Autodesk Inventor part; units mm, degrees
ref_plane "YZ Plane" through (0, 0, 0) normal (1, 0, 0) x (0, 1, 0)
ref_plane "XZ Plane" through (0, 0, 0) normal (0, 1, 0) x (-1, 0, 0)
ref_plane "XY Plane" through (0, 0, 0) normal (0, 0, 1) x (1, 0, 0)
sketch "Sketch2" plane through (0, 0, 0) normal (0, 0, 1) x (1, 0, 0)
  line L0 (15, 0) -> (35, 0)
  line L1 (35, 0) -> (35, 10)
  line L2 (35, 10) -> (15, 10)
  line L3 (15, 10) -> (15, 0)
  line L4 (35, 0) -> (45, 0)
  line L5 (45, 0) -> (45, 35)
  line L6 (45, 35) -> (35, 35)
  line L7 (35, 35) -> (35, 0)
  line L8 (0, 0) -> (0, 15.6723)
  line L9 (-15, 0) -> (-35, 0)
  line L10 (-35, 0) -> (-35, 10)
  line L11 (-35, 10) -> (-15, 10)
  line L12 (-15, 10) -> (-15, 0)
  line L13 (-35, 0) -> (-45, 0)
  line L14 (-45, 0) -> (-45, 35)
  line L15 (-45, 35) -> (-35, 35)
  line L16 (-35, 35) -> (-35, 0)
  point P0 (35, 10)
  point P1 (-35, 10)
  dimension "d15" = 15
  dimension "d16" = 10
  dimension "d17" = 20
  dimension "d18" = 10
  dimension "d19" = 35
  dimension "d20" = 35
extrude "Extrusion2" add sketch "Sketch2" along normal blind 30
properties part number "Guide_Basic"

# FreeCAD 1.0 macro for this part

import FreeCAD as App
import Part
import Sketcher

V = App.Vector


def add_polygon(sketch, points):
    """Adds a closed chain of lines whose ends are joined by coincident constraints."""
    first, n = sketch.GeometryCount, len(points)
    for a, b in zip(points, points[1:] + points[:1]):
        sketch.addGeometry(Part.LineSegment(App.Vector(*a, 0), App.Vector(*b, 0)), False)
    for i in range(n):
        sketch.addConstraint(Sketcher.Constraint("Coincident", first + i, 2, first + (i + 1) % n, 1))

doc = App.newDocument("Part")
body = doc.addObject("PartDesign::Body", "Body")
body.AllowCompound = True

# Sketch on XY plane
sketch1 = doc.addObject("Sketcher::SketchObject", "Sketch")
body.addObject(sketch1)
sketch1.AttachmentSupport = (doc.XY_Plane, [""])
sketch1.MapMode = "FlatFace"
add_polygon(sketch1, [(15, 10), (15, 0), (45, 0), (45, 35), (35, 35), (35, 10)])  # lines 0-5
add_polygon(sketch1, [(-15, 0), (-15, 10), (-35, 10), (-35, 35), (-45, 35), (-45, 0)])  # lines 6-11
sketch1.addConstraint([
    Sketcher.Constraint("Vertical", 0),
    Sketcher.Constraint("Horizontal", 1),
    Sketcher.Constraint("Vertical", 2),
    Sketcher.Constraint("Horizontal", 3),
    Sketcher.Constraint("Vertical", 4),
    Sketcher.Constraint("Horizontal", 5),
    Sketcher.Constraint("Vertical", 6),
    Sketcher.Constraint("Horizontal", 7),
    Sketcher.Constraint("Vertical", 8),
    Sketcher.Constraint("Horizontal", 9),
    Sketcher.Constraint("Vertical", 10),
    Sketcher.Constraint("Horizontal", 11),
    Sketcher.Constraint("Symmetric", 1, 2, 10, 2, -1, 1),
    Sketcher.Constraint("Symmetric", 5, 2, 6, 2, -2),
    Sketcher.Constraint("Symmetric", 3, 2, 8, 2, -2),
    Sketcher.Constraint("PointOnObject", 0, 2, -1),
    Sketcher.Constraint("Equal", 9, 0),
    Sketcher.Constraint("DistanceX", 3, 2, 3, 1, 10.0),
    Sketcher.Constraint("DistanceX", 5, 2, 5, 1, 20.0),
    Sketcher.Constraint("DistanceY", 2, 1, 2, 2, 35.0),
    Sketcher.Constraint("DistanceX", -1, 1, 0, 2, 15.0),
])
pad1 = doc.addObject("PartDesign::Pad", "Pad")
body.addObject(pad1)
pad1.Profile = sketch1
pad1.Length = 30

doc.recompute()
